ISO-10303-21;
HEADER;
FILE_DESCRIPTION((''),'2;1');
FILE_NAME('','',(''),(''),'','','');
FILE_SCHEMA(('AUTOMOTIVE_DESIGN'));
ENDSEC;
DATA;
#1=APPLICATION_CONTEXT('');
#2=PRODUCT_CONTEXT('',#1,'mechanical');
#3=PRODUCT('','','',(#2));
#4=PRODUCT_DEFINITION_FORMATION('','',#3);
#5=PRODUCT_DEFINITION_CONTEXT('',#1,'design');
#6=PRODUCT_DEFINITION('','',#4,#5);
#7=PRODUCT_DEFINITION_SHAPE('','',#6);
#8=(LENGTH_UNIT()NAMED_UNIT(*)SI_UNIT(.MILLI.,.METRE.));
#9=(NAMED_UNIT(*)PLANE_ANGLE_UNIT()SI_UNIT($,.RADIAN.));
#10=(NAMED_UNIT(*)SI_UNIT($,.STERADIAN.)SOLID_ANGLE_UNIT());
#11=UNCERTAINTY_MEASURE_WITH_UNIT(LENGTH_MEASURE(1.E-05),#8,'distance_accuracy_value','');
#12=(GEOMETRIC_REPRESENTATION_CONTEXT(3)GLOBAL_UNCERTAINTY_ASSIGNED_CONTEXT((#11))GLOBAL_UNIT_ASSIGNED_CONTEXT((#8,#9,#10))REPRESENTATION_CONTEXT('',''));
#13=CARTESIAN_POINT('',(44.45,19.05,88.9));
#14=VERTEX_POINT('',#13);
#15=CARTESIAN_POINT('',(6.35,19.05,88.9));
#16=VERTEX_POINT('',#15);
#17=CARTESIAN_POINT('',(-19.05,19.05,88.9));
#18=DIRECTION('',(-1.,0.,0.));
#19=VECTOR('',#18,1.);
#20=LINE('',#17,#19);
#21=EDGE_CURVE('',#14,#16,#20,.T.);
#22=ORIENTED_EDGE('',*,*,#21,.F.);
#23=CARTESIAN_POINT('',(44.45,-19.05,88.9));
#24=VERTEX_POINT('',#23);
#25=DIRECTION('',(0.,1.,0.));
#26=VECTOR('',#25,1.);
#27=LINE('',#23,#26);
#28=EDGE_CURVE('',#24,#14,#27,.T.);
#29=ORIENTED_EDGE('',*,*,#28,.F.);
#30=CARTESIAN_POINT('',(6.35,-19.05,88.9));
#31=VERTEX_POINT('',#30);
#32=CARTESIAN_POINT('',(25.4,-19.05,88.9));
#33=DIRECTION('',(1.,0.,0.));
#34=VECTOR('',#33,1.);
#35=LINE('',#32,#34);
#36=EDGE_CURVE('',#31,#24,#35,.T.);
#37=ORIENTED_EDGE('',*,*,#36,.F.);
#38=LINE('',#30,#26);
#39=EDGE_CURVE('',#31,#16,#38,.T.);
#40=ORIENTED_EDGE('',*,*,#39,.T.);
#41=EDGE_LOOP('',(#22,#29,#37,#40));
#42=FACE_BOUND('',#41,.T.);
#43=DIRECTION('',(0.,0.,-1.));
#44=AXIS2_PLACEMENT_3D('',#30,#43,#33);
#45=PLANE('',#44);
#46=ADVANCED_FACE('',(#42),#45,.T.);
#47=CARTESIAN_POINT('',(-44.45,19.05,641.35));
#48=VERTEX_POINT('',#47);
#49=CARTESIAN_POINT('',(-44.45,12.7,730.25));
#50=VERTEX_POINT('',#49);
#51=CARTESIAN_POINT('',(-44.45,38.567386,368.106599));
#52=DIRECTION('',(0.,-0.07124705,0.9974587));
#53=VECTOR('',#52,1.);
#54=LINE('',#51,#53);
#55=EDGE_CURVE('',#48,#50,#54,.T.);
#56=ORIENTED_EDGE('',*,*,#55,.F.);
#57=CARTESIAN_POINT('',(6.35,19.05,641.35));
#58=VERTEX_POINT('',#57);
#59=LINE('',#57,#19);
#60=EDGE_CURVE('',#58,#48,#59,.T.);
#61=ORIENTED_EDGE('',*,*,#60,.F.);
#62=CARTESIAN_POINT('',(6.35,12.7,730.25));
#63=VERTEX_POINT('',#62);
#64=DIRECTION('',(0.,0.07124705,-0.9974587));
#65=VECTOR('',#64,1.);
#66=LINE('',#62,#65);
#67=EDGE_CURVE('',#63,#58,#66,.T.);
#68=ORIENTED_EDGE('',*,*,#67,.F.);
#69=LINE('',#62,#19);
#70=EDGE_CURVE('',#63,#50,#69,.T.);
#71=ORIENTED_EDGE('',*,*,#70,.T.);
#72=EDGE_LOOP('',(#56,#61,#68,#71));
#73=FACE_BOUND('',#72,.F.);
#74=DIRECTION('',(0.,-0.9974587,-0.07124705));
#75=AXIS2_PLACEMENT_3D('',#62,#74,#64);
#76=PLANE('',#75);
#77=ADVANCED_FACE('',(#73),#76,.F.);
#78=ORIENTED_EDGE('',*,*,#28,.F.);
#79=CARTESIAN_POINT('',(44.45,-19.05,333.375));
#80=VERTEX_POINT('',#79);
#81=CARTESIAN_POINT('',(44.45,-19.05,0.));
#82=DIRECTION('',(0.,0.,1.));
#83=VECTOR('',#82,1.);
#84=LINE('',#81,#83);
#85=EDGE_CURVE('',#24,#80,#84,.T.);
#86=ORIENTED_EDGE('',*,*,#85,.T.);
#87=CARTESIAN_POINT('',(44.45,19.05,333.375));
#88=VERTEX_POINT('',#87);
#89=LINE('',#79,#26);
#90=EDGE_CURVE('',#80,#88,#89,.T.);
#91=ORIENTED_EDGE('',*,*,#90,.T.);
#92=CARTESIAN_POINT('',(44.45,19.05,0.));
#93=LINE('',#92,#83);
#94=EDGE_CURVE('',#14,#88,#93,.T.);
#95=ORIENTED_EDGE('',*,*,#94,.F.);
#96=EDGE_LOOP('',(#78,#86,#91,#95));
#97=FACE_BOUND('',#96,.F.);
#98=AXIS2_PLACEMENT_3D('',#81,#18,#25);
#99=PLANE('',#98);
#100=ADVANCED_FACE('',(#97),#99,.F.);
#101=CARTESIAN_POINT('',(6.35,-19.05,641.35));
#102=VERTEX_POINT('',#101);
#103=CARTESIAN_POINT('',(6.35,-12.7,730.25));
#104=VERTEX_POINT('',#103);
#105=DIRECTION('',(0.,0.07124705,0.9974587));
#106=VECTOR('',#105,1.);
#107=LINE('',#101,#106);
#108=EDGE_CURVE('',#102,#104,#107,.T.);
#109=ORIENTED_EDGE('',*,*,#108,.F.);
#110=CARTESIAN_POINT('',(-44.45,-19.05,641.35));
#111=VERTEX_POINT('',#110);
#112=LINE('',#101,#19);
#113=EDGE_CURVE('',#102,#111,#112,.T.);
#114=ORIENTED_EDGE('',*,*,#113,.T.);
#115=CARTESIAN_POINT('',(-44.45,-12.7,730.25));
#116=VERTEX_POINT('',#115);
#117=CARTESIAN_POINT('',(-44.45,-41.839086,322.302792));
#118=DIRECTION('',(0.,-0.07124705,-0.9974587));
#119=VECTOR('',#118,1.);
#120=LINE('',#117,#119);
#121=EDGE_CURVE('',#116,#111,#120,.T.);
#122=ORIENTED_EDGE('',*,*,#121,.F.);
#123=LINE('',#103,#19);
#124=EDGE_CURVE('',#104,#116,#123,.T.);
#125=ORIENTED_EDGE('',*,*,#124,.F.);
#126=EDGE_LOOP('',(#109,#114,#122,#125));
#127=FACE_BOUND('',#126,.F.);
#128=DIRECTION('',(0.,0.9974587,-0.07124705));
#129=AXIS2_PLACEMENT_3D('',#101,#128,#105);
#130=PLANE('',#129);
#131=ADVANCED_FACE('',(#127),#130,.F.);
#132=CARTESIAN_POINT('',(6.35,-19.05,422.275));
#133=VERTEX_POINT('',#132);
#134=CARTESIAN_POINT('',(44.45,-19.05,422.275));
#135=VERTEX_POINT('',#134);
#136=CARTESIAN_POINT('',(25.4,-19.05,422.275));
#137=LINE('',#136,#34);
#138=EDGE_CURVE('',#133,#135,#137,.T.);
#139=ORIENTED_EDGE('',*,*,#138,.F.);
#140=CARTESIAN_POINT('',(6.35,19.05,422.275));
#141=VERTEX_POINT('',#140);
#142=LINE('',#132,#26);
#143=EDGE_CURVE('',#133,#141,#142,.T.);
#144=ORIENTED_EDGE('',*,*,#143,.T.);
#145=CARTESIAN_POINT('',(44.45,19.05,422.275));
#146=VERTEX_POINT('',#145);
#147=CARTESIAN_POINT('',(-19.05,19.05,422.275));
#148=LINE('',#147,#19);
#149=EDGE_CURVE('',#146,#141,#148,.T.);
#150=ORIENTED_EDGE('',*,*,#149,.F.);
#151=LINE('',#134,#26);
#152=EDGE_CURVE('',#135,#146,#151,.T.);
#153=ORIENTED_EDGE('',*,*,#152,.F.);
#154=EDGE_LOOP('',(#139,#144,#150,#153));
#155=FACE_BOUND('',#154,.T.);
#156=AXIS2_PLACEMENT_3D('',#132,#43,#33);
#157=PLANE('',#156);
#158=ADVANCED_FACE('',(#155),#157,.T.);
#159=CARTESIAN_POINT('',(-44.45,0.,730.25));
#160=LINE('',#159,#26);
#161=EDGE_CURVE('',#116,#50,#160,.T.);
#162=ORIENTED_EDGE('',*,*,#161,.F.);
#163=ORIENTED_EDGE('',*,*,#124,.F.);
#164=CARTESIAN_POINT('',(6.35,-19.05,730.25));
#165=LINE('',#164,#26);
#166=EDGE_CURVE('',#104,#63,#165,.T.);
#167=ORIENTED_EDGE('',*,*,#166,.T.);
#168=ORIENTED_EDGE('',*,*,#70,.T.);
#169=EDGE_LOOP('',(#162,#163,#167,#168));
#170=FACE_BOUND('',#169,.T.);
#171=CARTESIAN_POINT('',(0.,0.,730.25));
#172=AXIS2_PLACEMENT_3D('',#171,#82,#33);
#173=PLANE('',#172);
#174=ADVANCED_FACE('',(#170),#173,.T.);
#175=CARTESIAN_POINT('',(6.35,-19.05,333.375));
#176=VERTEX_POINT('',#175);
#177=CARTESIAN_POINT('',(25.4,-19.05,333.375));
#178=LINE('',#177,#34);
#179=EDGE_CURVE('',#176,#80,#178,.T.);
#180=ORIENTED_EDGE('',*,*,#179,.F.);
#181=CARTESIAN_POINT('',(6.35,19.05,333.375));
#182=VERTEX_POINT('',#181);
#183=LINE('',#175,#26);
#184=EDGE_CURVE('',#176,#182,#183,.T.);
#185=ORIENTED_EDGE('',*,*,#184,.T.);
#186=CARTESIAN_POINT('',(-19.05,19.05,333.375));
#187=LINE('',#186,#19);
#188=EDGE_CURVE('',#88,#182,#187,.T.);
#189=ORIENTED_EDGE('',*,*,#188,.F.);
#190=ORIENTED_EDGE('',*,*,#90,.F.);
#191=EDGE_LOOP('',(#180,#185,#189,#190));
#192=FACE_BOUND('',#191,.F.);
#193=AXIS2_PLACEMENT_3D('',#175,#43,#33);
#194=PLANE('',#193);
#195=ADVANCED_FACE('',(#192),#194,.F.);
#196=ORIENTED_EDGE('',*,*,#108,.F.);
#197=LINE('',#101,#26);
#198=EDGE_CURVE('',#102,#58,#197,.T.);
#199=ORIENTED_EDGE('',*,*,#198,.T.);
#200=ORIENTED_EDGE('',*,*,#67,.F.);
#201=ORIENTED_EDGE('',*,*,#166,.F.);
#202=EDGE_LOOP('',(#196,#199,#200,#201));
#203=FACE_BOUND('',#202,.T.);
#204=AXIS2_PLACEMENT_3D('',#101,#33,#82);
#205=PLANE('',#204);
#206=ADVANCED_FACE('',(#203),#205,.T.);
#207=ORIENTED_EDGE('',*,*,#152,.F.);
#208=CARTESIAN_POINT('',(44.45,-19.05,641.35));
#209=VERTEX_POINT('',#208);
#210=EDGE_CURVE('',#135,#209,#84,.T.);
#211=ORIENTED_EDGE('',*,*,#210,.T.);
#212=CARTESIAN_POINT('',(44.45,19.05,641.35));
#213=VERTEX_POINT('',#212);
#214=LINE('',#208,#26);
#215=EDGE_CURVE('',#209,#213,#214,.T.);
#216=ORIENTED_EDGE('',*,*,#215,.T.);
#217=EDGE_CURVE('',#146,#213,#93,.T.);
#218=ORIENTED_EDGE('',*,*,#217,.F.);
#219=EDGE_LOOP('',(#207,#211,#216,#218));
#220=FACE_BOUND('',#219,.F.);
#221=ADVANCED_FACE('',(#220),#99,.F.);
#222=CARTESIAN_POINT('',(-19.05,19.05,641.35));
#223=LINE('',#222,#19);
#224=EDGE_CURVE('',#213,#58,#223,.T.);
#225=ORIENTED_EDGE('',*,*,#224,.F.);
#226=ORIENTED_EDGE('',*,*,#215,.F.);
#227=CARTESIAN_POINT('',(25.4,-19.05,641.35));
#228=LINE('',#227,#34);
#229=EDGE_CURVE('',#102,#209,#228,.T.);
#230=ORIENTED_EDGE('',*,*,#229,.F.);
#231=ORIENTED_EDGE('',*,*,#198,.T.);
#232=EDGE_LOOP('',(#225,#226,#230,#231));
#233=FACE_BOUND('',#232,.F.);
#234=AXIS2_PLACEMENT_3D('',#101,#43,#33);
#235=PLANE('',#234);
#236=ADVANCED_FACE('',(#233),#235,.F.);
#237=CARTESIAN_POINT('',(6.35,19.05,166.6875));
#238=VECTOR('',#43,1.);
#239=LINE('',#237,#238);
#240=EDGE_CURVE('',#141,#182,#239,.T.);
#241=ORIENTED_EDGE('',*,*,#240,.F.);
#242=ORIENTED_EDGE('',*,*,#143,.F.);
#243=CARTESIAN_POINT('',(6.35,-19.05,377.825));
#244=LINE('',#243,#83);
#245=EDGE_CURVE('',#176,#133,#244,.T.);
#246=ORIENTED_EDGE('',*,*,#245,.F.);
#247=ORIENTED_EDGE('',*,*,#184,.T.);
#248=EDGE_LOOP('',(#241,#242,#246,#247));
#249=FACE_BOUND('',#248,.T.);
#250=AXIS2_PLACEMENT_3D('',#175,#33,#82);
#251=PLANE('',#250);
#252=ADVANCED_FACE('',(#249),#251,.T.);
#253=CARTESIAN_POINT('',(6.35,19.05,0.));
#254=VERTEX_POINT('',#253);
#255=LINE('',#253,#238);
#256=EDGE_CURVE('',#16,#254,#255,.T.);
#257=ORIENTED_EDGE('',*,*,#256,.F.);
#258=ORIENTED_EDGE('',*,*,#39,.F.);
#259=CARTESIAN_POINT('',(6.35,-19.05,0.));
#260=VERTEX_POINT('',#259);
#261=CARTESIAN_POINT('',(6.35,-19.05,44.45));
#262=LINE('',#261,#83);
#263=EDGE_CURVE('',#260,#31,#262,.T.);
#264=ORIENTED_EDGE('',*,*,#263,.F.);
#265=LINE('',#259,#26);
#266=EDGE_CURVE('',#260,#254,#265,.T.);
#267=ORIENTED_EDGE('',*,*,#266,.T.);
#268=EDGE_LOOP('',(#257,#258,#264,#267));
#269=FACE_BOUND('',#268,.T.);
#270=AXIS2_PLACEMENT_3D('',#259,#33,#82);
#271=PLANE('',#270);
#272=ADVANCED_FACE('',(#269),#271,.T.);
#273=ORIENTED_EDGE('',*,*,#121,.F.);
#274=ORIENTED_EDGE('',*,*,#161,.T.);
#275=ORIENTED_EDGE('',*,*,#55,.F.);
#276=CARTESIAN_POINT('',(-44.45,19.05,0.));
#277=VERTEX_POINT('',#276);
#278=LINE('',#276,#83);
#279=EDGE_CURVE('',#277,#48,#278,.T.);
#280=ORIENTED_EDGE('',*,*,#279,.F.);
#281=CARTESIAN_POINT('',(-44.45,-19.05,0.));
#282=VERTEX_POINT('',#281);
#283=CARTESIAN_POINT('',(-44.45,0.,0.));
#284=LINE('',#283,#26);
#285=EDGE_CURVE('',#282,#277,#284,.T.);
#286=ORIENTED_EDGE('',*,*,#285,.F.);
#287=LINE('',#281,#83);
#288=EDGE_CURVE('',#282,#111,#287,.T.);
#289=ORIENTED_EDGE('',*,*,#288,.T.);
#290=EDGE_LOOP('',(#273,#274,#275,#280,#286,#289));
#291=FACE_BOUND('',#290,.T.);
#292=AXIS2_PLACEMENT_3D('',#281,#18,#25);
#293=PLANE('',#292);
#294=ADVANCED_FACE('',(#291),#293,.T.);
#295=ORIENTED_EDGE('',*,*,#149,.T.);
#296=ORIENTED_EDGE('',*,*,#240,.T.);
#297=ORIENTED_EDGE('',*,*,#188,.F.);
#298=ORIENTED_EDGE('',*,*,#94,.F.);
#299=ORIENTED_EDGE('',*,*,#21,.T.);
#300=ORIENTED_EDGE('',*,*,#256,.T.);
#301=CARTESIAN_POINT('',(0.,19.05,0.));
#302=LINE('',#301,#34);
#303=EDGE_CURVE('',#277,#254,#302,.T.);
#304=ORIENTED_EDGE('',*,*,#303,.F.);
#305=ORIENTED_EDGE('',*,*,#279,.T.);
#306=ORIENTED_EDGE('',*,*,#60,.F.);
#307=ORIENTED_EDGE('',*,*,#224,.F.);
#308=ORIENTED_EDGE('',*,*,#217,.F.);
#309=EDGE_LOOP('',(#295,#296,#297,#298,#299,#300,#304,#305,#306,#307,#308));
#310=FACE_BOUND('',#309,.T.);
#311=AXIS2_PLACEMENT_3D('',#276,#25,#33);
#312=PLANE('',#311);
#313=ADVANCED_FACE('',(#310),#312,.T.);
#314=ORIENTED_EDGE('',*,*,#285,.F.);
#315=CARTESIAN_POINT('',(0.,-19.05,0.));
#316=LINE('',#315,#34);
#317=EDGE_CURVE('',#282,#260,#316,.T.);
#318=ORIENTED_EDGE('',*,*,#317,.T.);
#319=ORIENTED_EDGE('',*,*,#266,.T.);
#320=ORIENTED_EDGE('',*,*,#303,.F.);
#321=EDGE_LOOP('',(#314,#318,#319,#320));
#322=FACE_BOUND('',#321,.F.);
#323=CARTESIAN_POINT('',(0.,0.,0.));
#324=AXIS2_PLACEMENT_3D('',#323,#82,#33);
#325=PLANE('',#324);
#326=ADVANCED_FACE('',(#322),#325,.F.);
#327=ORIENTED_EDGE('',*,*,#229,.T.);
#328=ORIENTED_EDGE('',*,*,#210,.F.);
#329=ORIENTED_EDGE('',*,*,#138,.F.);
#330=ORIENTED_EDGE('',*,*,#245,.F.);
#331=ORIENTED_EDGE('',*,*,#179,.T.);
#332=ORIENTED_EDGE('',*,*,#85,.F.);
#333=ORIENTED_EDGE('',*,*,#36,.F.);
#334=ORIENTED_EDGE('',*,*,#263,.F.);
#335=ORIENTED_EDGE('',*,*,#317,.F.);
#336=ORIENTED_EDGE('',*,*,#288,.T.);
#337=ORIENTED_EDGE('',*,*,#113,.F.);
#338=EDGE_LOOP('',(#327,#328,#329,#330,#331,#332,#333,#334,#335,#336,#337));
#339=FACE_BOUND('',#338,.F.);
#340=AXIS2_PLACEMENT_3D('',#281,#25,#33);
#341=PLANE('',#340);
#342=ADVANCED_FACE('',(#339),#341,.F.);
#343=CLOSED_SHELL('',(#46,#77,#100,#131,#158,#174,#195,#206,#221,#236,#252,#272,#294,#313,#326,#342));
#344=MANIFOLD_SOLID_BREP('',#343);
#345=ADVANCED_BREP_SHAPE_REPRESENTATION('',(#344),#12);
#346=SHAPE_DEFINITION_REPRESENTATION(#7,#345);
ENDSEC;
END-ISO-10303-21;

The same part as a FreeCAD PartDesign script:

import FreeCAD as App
import Part
import Sketcher
from FreeCAD import Vector
Q = App.Units.Quantity

doc = App.newDocument("Part")
params = doc.addObject("Spreadsheet::Sheet", "Params")
for row, (alias, value) in enumerate([
    ("sketch1_width", "3.5 in"),
    ("sketch1_height", "1.5 in"),
    ("pad1_length", "28.75 in"),
    ("sketch2_width", "1.5 in"),
    ("sketch2_height", "3.5 in"),
    ("sketch3_height", "3.5 in"),
    ("sketch3_width", "0.25 in"),
], start=1):
    params.set(f"A{row}", alias)
    params.set(f"B{row}", "=" + value)
    params.setAlias(f"B{row}", alias)

body = doc.addObject("PartDesign::Body", "Body")

# Sketch on XY plane
sketch1 = doc.addObject("Sketcher::SketchObject", "Sketch")
body.addObject(sketch1)
sketch1.AttachmentSupport = (doc.XY_Plane, [""])
sketch1.MapMode = "FlatFace"
sketch1.addGeometry([
    Part.LineSegment(Vector(-44.45, 19.05, 0), Vector(-44.45, -19.05, 0)),
    Part.LineSegment(Vector(-44.45, -19.05, 0), Vector(44.45, -19.05, 0)),
    Part.LineSegment(Vector(44.45, -19.05, 0), Vector(44.45, 19.05, 0)),
    Part.LineSegment(Vector(44.45, 19.05, 0), Vector(-44.45, 19.05, 0)),
], False)
sketch1.addConstraint([
    Sketcher.Constraint("Coincident", 0, 2, 1, 1),
    Sketcher.Constraint("Coincident", 1, 2, 2, 1),
    Sketcher.Constraint("Coincident", 2, 2, 3, 1),
    Sketcher.Constraint("Coincident", 3, 2, 0, 1),
    Sketcher.Constraint("Vertical", 0),
    Sketcher.Constraint("Horizontal", 1),
    Sketcher.Constraint("Vertical", 2),
    Sketcher.Constraint("Horizontal", 3),
    Sketcher.Constraint("Symmetric", 0, 2, 2, 2, -1, 1),
    Sketcher.Constraint("DistanceX", 1, 1, 1, 2, Q("3.5 in")),
    Sketcher.Constraint("DistanceY", 0, 2, 0, 1, Q("1.5 in")),
])
sketch1.setExpression("Constraints[9]", "Params.sketch1_width")
sketch1.setExpression("Constraints[10]", "Params.sketch1_height")
pad1 = doc.addObject("PartDesign::Pad", "Pad")
body.addObject(pad1)
pad1.Profile = sketch1
pad1.setExpression("Length", "Params.pad1_length")

# Sketch on XZ plane
sketch2 = doc.addObject("Sketcher::SketchObject", "Sketch001")
body.addObject(sketch2)
sketch2.AttachmentSupport = (doc.XZ_Plane, [""])
sketch2.MapMode = "FlatFace"
sketch2.AttachmentOffset = App.Placement(Vector(0, 0, 0.75 * 25.4), App.Rotation())
sketch2.addGeometry([
    Part.LineSegment(Vector(6.35, 88.9, 0), Vector(6.35, 0, 0)),  # 0
    Part.LineSegment(Vector(6.35, 0, 0), Vector(44.45, 0, 0)),  # 1
    Part.LineSegment(Vector(44.45, 0, 0), Vector(44.45, 88.9, 0)),  # 2
    Part.LineSegment(Vector(44.45, 88.9, 0), Vector(6.35, 88.9, 0)),  # 3
    Part.LineSegment(Vector(6.35, 422.275, 0), Vector(6.35, 333.375, 0)),  # 4
    Part.LineSegment(Vector(6.35, 333.375, 0), Vector(44.45, 333.375, 0)),  # 5
    Part.LineSegment(Vector(44.45, 333.375, 0), Vector(44.45, 422.275, 0)),  # 6
    Part.LineSegment(Vector(44.45, 422.275, 0), Vector(6.35, 422.275, 0)),  # 7
    Part.LineSegment(Vector(6.35, 730.25, 0), Vector(6.35, 641.35, 0)),  # 8
    Part.LineSegment(Vector(6.35, 641.35, 0), Vector(44.45, 641.35, 0)),  # 9
    Part.LineSegment(Vector(44.45, 641.35, 0), Vector(44.45, 730.25, 0)),  # 10
    Part.LineSegment(Vector(44.45, 730.25, 0), Vector(6.35, 730.25, 0)),  # 11
], False)
sketch2.addConstraint([
    Sketcher.Constraint("Coincident", 0, 2, 1, 1),
    Sketcher.Constraint("Coincident", 1, 2, 2, 1),
    Sketcher.Constraint("Coincident", 2, 2, 3, 1),
    Sketcher.Constraint("Coincident", 3, 2, 0, 1),
    Sketcher.Constraint("Coincident", 4, 2, 5, 1),
    Sketcher.Constraint("Coincident", 5, 2, 6, 1),
    Sketcher.Constraint("Coincident", 6, 2, 7, 1),
    Sketcher.Constraint("Coincident", 7, 2, 4, 1),
    Sketcher.Constraint("Coincident", 8, 2, 9, 1),
    Sketcher.Constraint("Coincident", 9, 2, 10, 1),
    Sketcher.Constraint("Coincident", 10, 2, 11, 1),
    Sketcher.Constraint("Coincident", 11, 2, 8, 1),
    Sketcher.Constraint("Vertical", 0),
    Sketcher.Constraint("Horizontal", 1),
    Sketcher.Constraint("Vertical", 2),
    Sketcher.Constraint("Horizontal", 3),
    Sketcher.Constraint("Vertical", 4),
    Sketcher.Constraint("Horizontal", 5),
    Sketcher.Constraint("Vertical", 6),
    Sketcher.Constraint("Horizontal", 7),
    Sketcher.Constraint("Vertical", 8),
    Sketcher.Constraint("Horizontal", 9),
    Sketcher.Constraint("Vertical", 10),
    Sketcher.Constraint("Horizontal", 11),
    Sketcher.Constraint("PointOnObject", 0, 2, -1),
    Sketcher.Constraint("Vertical", 3, 2, 4, 2),
    Sketcher.Constraint("Vertical", 2, 2, 5, 2),
    Sketcher.Constraint("Vertical", 7, 2, 8, 2),
    Sketcher.Constraint("Vertical", 6, 2, 9, 2),
    Sketcher.Constraint("Equal", 2, 4),
    Sketcher.Constraint("Equal", 6, 8),
    Sketcher.Constraint("DistanceX", 1, 1, 1, 2, Q("1.5 in")),
    Sketcher.Constraint("DistanceY", 0, 2, 0, 1, Q("3.5 in")),
    Sketcher.Constraint("DistanceX", -1, 1, 0, 2, Q("0.25 in")),
    Sketcher.Constraint("DistanceY", -1, 1, 8, 2, Q("25.25 in")),
    Sketcher.Constraint("DistanceY", -1, 1, 4, 2, Q("13.125 in")),
])
sketch2.setExpression("Constraints[31]", "Params.sketch2_width")
sketch2.setExpression("Constraints[32]", "Params.sketch2_height")
pocket1 = doc.addObject("PartDesign::Pocket", "Pocket")
body.addObject(pocket1)
pocket1.Profile = sketch2
pocket1.Type = "ThroughAll"

# Sketch on YZ plane
sketch3 = doc.addObject("Sketcher::SketchObject", "Sketch002")
body.addObject(sketch3)
sketch3.AttachmentSupport = (doc.YZ_Plane, [""])
sketch3.MapMode = "FlatFace"
sketch3.AttachmentOffset = App.Placement(Vector(0, 0, 0.25 * 25.4), App.Rotation())
sketch3.addGeometry([
    Part.LineSegment(Vector(-12.7, 730.25, 0), Vector(-19.05, 730.25, 0)),  # 0
    Part.LineSegment(Vector(-19.05, 730.25, 0), Vector(-19.05, 641.35, 0)),  # 1
    Part.LineSegment(Vector(-19.05, 641.35, 0), Vector(-12.7, 730.25, 0)),  # 2
    Part.LineSegment(Vector(19.05, 641.35, 0), Vector(19.05, 730.25, 0)),  # 3
    Part.LineSegment(Vector(19.05, 730.25, 0), Vector(12.7, 730.25, 0)),  # 4
    Part.LineSegment(Vector(12.7, 730.25, 0), Vector(19.05, 641.35, 0)),  # 5
], False)
sketch3.addConstraint([
    Sketcher.Constraint("Coincident", 0, 2, 1, 1),
    Sketcher.Constraint("Coincident", 1, 2, 2, 1),
    Sketcher.Constraint("Coincident", 2, 2, 0, 1),
    Sketcher.Constraint("Coincident", 3, 2, 4, 1),
    Sketcher.Constraint("Coincident", 4, 2, 5, 1),
    Sketcher.Constraint("Coincident", 5, 2, 3, 1),
    Sketcher.Constraint("Horizontal", 0),
    Sketcher.Constraint("Vertical", 1),
    Sketcher.Constraint("Vertical", 3),
    Sketcher.Constraint("Horizontal", 4),
    Sketcher.Constraint("Symmetric", 0, 2, 3, 2, -2),
    Sketcher.Constraint("Horizontal", 1, 2, 5, 2),
    Sketcher.Constraint("Equal", 0, 4),
    Sketcher.Constraint("DistanceY", 1, 2, 1, 1, Q("3.5 in")),
    Sketcher.Constraint("DistanceX", 2, 2, 4, 2, Q("1 in")),
    Sketcher.Constraint("DistanceX", 0, 2, 0, 1, Q("0.25 in")),
    Sketcher.Constraint("DistanceY", -1, 1, 0, 2, Q("28.75 in")),
])
sketch3.setExpression("Constraints[13]", "Params.sketch3_height")
sketch3.setExpression("Constraints[15]", "Params.sketch3_width")
pocket2 = doc.addObject("PartDesign::Pocket", "Pocket001")
body.addObject(pocket2)
pocket2.Profile = sketch3
pocket2.Type = "ThroughAll"

doc.recompute()
